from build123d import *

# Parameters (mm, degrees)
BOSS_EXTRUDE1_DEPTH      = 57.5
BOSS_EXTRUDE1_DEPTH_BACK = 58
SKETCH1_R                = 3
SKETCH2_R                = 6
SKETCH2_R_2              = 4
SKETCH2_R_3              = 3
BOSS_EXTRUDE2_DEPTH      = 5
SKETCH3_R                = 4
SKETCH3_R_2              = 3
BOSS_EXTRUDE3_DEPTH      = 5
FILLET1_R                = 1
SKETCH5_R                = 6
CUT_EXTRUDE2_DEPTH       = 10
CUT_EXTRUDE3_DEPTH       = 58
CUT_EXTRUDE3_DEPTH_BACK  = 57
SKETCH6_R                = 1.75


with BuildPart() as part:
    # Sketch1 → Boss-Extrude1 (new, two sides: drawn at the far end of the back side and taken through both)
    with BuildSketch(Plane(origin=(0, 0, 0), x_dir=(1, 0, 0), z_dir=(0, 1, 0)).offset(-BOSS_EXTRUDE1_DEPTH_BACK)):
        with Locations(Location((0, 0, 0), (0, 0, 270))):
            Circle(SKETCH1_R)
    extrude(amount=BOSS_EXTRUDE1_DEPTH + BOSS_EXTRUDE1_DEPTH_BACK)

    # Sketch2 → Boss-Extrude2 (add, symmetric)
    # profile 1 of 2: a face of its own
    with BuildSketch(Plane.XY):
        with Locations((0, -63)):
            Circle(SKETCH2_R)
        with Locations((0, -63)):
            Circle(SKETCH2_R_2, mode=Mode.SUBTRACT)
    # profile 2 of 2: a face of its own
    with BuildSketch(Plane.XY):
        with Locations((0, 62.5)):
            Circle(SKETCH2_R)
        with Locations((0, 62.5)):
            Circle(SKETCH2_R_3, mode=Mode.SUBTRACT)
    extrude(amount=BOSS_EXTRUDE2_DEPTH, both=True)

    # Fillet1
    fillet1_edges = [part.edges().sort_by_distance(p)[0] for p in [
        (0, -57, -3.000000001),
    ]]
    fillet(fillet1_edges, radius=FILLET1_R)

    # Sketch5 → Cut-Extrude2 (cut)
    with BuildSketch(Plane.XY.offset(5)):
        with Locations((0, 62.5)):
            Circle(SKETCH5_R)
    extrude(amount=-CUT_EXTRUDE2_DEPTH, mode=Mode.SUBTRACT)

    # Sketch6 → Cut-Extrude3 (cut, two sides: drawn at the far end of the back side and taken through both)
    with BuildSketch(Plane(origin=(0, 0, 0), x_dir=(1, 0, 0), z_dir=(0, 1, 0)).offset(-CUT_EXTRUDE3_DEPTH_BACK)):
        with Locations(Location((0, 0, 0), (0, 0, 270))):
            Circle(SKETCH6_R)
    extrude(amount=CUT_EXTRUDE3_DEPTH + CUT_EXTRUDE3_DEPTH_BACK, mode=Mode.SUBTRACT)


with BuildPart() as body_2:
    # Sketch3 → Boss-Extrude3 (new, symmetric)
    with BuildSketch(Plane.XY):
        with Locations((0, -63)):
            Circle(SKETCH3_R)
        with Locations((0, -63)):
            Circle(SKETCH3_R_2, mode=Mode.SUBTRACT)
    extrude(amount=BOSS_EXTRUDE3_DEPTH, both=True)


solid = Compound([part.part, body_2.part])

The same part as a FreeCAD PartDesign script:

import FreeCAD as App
import Part
import Sketcher
Q = App.Units.Quantity


def edges_at(feature, points):
    """Names of the edges that pass closest to the given points."""
    edges = feature.Shape.Edges
    near = lambda p: min(range(len(edges)), key=lambda i: edges[i].distToShape(Part.Vertex(*p))[0])
    return sorted({f"Edge{near(p) + 1}" for p in points})

doc = App.newDocument("Part")
body = doc.addObject("PartDesign::Body", "Body")

# Sketch on XZ plane
sketch1 = doc.addObject("Sketcher::SketchObject", "Sketch")
body.addObject(sketch1)
sketch1.AttachmentSupport = (doc.XZ_Plane, [""])
sketch1.MapMode = "FlatFace"
sketch1.addGeometry(Part.Circle(App.Vector(0, 0, 0), App.Vector(0, 0, 1), 3), False)
sketch1.addConstraint(Sketcher.Constraint("Coincident", 0, 3, -1, 1))
sketch1.addConstraint(Sketcher.Constraint("Diameter", 0, Q("6 mm")))
pad1 = doc.addObject("PartDesign::Pad", "Pad")
body.addObject(pad1)
pad1.Profile = sketch1
pad1.Type = "TwoLengths"
pad1.Length = 57.5
pad1.Length2 = 58
pad1.Reversed = True

# Sketch on XY plane
sketch2 = doc.addObject("Sketcher::SketchObject", "Sketch001")
body.addObject(sketch2)
sketch2.AttachmentSupport = (doc.XY_Plane, [""])
sketch2.MapMode = "FlatFace"
sketch2.addGeometry(Part.Circle(App.Vector(0, -63, 0), App.Vector(0, 0, 1), 6), False)
sketch2.addGeometry(Part.Circle(App.Vector(0, -63, 0), App.Vector(0, 0, 1), 4), False)
sketch2.addGeometry(Part.Circle(App.Vector(0, 62.5, 0), App.Vector(0, 0, 1), 6), False)
sketch2.addGeometry(Part.Circle(App.Vector(0, 62.5, 0), App.Vector(0, 0, 1), 3), False)
sketch2.addConstraint(Sketcher.Constraint("Coincident", 1, 3, 0, 3))
sketch2.addConstraint(Sketcher.Constraint("Coincident", 3, 3, 2, 3))
sketch2.addConstraint(Sketcher.Constraint("Equal", 0, 2))
sketch2.addConstraint(Sketcher.Constraint("PointOnObject", 0, 3, -2))
sketch2.addConstraint(Sketcher.Constraint("PointOnObject", 2, 3, -2))
sketch2.addConstraint(Sketcher.Constraint("Diameter", 0, Q("12 mm")))
sketch2.addConstraint(Sketcher.Constraint("Diameter", 1, Q("8 mm")))
sketch2.addConstraint(Sketcher.Constraint("Diameter", 3, Q("6 mm")))
sketch2.addConstraint(Sketcher.Constraint("DistanceY", 0, 3, -1, 1, Q("63 mm")))
sketch2.addConstraint(Sketcher.Constraint("DistanceY", -1, 1, 2, 3, Q("62.5 mm")))
pad2 = doc.addObject("PartDesign::Pad", "Pad001")
body.addObject(pad2)
pad2.Profile = sketch2
pad2.Length = 10
pad2.Midplane = True
doc.recompute()

fillet = doc.addObject("PartDesign::Fillet", "Fillet")
body.addObject(fillet)
fillet.Base = (pad2, edges_at(pad2, [(0, -57, -3)]))
fillet.Radius = 1

# Sketch on XY plane
sketch3 = doc.addObject("Sketcher::SketchObject", "Sketch002")
body.addObject(sketch3)
sketch3.AttachmentSupport = (doc.XY_Plane, [""])
sketch3.MapMode = "FlatFace"
sketch3.AttachmentOffset = App.Placement(App.Vector(0, 0, 5), App.Rotation())
sketch3.addGeometry(Part.Circle(App.Vector(0, 62.5, 0), App.Vector(0, 0, 1), 6), False)
sketch3.addConstraint(Sketcher.Constraint("PointOnObject", 0, 3, -2))
sketch3.addConstraint(Sketcher.Constraint("Diameter", 0, Q("12 mm")))
sketch3.addConstraint(Sketcher.Constraint("DistanceY", -1, 1, 0, 3, Q("62.5 mm")))
pocket1 = doc.addObject("PartDesign::Pocket", "Pocket")
body.addObject(pocket1)
pocket1.Profile = sketch3
pocket1.Length = 10

# Sketch on XZ plane
sketch4 = doc.addObject("Sketcher::SketchObject", "Sketch003")
body.addObject(sketch4)
sketch4.AttachmentSupport = (doc.XZ_Plane, [""])
sketch4.MapMode = "FlatFace"
sketch4.addGeometry(Part.Circle(App.Vector(0, 0, 0), App.Vector(0, 0, 1), 1.75), False)
sketch4.addConstraint(Sketcher.Constraint("Coincident", 0, 3, -1, 1))
sketch4.addConstraint(Sketcher.Constraint("Diameter", 0, Q("3.5 mm")))
pocket2 = doc.addObject("PartDesign::Pocket", "Pocket001")
body.addObject(pocket2)
pocket2.Profile = sketch4
pocket2.Type = "TwoLengths"
pocket2.Length = 58
pocket2.Length2 = 57
body2 = doc.addObject("PartDesign::Body", "Body001")

# Sketch on XY plane
sketch5 = doc.addObject("Sketcher::SketchObject", "Sketch004")
body2.addObject(sketch5)
sketch5.AttachmentSupport = (doc.getObject("XY_Plane001"), [""])
sketch5.MapMode = "FlatFace"
sketch5.addGeometry(Part.Circle(App.Vector(0, -63, 0), App.Vector(0, 0, 1), 4), False)
sketch5.addGeometry(Part.Circle(App.Vector(0, -63, 0), App.Vector(0, 0, 1), 3), False)
sketch5.addConstraint(Sketcher.Constraint("Coincident", 1, 3, 0, 3))
sketch5.addConstraint(Sketcher.Constraint("PointOnObject", 0, 3, -2))
sketch5.addConstraint(Sketcher.Constraint("Diameter", 0, Q("8 mm")))
sketch5.addConstraint(Sketcher.Constraint("Diameter", 1, Q("6 mm")))
sketch5.addConstraint(Sketcher.Constraint("DistanceY", 0, 3, -1, 1, Q("63 mm")))
pad3 = doc.addObject("PartDesign::Pad", "Pad002")
body2.addObject(pad3)
pad3.Profile = sketch5
pad3.Length = 10
pad3.Midplane = True

doc.recompute()
